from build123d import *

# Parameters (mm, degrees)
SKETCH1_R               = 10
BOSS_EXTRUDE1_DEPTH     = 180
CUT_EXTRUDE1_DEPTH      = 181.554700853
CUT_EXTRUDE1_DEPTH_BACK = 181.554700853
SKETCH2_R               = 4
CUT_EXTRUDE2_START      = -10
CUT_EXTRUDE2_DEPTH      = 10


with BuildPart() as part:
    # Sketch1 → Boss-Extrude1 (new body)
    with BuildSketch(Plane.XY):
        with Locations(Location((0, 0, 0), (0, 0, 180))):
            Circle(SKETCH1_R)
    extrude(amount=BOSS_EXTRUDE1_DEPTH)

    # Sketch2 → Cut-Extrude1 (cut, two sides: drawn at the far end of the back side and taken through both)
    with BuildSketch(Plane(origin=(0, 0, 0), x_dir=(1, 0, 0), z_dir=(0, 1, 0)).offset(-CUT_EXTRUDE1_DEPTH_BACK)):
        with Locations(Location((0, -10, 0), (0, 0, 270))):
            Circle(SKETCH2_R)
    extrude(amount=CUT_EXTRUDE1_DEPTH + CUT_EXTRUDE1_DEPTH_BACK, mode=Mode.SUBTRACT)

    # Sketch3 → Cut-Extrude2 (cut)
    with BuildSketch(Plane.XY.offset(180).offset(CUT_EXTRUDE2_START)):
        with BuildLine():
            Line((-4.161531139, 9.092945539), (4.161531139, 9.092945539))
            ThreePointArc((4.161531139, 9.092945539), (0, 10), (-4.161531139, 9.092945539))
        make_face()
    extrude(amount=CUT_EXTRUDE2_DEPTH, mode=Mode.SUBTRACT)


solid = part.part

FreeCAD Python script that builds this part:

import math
import FreeCAD as App
import Part
import Sketcher

doc = App.newDocument("Part")
params = doc.addObject("Spreadsheet::Sheet", "Params")
for row, (alias, value) in enumerate([
    ("sketch1_diameter", "20 mm"),
    ("pad1_length", "180 mm"),
    ("sketch2_diameter", "8 mm"),
    ("sketch3_radius", "10 mm"),
    ("pocket2_length", "10 mm"),
], start=1):
    params.set(f"A{row}", alias)
    params.set(f"B{row}", "=" + value)
    params.setAlias(f"B{row}", alias)

body = doc.addObject("PartDesign::Body", "Body")

# Sketch on XY plane
sketch1 = body.newObject("Sketcher::SketchObject", "Sketch")
sketch1.AttachmentSupport = (doc.getObject("XY_Plane"), [""])
sketch1.MapMode = "FlatFace"
sketch1.addGeometry(Part.Circle(App.Vector(0, 0, 0), App.Vector(0, 0, 1), 10), False)
sketch1.addConstraint([
    Sketcher.Constraint("Coincident", 0, 3, -1, 1),
    Sketcher.Constraint("Diameter", 0, 20.0),
])
sketch1.setExpression("Constraints[1]", "Params.sketch1_diameter")
pad1 = body.newObject("PartDesign::Pad", "Pad")
pad1.Profile = sketch1
pad1.setExpression("Length", "Params.pad1_length")

# Sketch on XZ plane
sketch2 = body.newObject("Sketcher::SketchObject", "Sketch001")
sketch2.AttachmentSupport = (doc.getObject("XZ_Plane"), [""])
sketch2.MapMode = "FlatFace"
sketch2.addGeometry(Part.Circle(App.Vector(0, 10, 0), App.Vector(0, 0, 1), 4), False)
sketch2.addConstraint([
    Sketcher.Constraint("PointOnObject", 0, 3, -2),
    Sketcher.Constraint("Diameter", 0, 8.0),
    Sketcher.Constraint("DistanceY", -1, 1, 0, 3, 10.0),
])
sketch2.setExpression("Constraints[1]", "Params.sketch2_diameter")
pocket1 = body.newObject("PartDesign::Pocket", "Pocket")
pocket1.Profile = sketch2
pocket1.Type = "ThroughAll"
pocket1.Midplane = True

# Sketch on XY plane
sketch3 = body.newObject("Sketcher::SketchObject", "Sketch002")
sketch3.AttachmentSupport = (doc.getObject("XY_Plane"), [""])
sketch3.MapMode = "FlatFace"
sketch3.AttachmentOffset = App.Placement(App.Vector(0, 0, 170), App.Rotation())
sketch3.addGeometry([
    Part.LineSegment(App.Vector(-4, 9, 0), App.Vector(4, 9, 0)),
    Part.ArcOfCircle(Part.Circle(App.Vector(0, 0, 0), App.Vector(0, 0, 1), 10), math.radians(65), math.radians(115)),
], False)
sketch3.addConstraint([
    Sketcher.Constraint("Coincident", 0, 1, 1, 2),
    Sketcher.Constraint("Coincident", 1, 1, 0, 2),
    Sketcher.Constraint("Horizontal", 0),
    Sketcher.Constraint("Coincident", 1, 3, -1, 1),
    Sketcher.Constraint("Radius", 1, 10.0),
    Sketcher.Constraint("DistanceX", 0, 1, 0, 2, 8.323062),
])
sketch3.setExpression("Constraints[4]", "Params.sketch3_radius")
pocket2 = body.newObject("PartDesign::Pocket", "Pocket001")
pocket2.Profile = sketch3
pocket2.setExpression("Length", "Params.pocket2_length")
pocket2.Reversed = True

doc.recompute()
